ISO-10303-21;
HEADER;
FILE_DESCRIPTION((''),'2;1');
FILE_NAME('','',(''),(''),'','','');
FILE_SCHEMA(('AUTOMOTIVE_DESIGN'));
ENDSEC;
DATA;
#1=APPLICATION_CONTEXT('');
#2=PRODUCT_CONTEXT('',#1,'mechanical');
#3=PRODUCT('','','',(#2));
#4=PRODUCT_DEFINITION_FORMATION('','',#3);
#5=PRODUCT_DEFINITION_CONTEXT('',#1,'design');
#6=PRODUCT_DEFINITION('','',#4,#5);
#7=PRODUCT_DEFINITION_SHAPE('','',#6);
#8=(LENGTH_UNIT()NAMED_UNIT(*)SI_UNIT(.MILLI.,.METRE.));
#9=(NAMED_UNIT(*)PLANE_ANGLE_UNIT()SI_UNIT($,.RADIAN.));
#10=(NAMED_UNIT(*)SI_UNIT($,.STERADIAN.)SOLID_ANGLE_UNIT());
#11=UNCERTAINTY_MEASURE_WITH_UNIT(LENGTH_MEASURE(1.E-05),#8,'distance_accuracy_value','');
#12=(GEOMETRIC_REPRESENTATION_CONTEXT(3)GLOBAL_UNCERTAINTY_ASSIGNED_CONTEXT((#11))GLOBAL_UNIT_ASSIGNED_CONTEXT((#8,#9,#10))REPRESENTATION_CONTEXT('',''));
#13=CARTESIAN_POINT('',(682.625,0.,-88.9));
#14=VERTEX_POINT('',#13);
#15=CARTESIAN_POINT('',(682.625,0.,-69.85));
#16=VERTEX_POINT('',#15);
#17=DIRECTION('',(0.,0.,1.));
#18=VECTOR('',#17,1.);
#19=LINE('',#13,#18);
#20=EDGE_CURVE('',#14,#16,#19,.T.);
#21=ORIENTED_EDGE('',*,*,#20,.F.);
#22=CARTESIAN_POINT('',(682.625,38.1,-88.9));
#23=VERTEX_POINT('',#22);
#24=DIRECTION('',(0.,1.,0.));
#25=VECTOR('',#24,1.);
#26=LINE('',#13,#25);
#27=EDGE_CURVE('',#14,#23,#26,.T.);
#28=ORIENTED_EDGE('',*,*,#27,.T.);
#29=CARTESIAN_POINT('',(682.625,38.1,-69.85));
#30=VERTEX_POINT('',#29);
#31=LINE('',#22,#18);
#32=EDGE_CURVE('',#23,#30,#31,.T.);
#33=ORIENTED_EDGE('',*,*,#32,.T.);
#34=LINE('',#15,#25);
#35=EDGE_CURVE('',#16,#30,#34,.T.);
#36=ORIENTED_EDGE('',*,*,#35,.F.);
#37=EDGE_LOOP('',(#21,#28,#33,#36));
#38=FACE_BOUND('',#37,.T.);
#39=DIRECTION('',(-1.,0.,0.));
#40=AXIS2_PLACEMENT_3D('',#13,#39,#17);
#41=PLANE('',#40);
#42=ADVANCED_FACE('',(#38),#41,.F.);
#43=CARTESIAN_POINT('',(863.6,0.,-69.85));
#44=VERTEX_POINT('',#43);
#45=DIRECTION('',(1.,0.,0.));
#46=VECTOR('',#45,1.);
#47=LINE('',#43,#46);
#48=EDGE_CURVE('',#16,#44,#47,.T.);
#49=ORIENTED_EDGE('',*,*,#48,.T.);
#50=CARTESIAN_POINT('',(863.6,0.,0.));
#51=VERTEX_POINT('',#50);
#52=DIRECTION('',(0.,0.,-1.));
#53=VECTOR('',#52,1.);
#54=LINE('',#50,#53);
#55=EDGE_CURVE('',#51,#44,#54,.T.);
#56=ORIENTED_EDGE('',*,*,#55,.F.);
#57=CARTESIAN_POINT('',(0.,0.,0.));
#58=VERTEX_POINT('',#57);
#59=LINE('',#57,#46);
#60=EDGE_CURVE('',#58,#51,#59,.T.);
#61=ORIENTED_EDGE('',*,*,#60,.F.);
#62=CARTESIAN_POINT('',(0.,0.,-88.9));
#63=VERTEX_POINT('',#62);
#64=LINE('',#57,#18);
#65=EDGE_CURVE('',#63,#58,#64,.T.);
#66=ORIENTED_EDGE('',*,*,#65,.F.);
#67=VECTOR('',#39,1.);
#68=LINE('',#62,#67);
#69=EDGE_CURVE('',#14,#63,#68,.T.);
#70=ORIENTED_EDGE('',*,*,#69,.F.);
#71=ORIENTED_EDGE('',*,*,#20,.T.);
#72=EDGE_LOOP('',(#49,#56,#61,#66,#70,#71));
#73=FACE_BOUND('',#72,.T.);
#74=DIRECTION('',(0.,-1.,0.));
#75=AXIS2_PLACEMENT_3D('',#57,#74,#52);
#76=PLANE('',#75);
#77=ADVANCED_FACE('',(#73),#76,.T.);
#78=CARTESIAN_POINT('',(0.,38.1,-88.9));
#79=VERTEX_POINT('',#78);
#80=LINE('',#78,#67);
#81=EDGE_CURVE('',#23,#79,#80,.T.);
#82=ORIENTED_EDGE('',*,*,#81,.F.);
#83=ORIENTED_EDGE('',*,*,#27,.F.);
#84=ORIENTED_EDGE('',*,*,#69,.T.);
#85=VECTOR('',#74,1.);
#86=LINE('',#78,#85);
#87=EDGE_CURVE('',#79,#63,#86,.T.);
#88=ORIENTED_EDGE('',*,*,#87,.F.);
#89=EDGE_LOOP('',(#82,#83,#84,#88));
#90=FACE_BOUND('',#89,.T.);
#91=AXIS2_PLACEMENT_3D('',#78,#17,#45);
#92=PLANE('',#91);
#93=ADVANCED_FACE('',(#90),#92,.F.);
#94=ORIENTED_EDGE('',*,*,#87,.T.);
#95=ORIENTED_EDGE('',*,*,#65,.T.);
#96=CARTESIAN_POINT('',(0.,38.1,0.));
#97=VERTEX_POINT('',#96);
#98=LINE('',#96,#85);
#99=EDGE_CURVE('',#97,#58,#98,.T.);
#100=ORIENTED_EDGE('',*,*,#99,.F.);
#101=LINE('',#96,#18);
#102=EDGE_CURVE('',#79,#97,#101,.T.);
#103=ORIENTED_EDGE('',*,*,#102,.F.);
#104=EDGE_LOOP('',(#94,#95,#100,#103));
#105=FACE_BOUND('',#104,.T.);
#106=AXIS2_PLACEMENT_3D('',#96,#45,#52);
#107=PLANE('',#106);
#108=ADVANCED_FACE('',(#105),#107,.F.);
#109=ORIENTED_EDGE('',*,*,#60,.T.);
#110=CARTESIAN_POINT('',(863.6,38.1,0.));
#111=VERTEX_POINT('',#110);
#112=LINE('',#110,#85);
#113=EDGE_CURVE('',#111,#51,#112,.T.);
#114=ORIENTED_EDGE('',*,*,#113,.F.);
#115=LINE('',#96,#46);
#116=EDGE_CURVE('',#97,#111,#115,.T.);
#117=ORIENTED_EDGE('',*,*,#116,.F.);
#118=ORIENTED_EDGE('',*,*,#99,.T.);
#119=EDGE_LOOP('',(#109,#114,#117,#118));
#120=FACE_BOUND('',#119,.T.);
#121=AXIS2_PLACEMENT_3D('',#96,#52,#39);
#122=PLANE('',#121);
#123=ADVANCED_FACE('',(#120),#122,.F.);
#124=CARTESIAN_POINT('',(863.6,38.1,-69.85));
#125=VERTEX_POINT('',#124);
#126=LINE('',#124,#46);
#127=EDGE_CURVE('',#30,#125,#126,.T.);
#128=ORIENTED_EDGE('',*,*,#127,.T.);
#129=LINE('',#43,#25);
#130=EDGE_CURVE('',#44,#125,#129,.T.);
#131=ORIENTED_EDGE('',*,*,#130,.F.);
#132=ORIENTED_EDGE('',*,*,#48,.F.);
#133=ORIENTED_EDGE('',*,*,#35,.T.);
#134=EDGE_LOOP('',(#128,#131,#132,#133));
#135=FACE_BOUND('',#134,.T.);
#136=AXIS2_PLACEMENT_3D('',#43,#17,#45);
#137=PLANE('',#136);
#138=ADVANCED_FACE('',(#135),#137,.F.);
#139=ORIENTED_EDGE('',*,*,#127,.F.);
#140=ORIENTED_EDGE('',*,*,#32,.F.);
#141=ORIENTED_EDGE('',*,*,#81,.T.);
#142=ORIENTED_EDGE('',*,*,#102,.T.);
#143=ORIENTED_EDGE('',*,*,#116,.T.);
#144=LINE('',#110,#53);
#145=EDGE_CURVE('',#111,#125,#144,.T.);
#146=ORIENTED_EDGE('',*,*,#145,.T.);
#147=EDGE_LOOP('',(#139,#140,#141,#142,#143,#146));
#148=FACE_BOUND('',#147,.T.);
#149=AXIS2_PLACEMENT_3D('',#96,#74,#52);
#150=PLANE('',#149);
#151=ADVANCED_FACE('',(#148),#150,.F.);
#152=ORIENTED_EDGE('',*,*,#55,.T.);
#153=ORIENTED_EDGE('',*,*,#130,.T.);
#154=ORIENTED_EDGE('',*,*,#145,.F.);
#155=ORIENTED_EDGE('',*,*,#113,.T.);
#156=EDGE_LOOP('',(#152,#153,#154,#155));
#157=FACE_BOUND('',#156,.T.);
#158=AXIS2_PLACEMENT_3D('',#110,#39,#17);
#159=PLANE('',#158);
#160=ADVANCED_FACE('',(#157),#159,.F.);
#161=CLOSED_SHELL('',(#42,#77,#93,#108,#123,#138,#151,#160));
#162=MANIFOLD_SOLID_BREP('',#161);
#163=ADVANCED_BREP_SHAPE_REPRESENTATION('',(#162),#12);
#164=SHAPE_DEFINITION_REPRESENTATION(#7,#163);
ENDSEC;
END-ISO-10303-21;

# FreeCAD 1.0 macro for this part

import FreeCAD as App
import Part
import Sketcher
Q = App.Units.Quantity

doc = App.newDocument("Part")
body = doc.addObject("PartDesign::Body", "Body")

# Sketch on XZ plane
sketch1 = body.newObject("Sketcher::SketchObject", "Sketch")
sketch1.AttachmentSupport = (doc.getObject("XZ_Plane"), [""])
sketch1.MapMode = "FlatFace"
sketch1.addGeometry([
    Part.LineSegment(App.Vector(0, -89, 0), App.Vector(0, 0, 0)),
    Part.LineSegment(App.Vector(0, 0, 0), App.Vector(864, 0, 0)),
    Part.LineSegment(App.Vector(864, 0, 0), App.Vector(864, -89, 0)),
    Part.LineSegment(App.Vector(864, -89, 0), App.Vector(0, -89, 0)),
], False)
sketch1.addConstraint([
    Sketcher.Constraint("Coincident", 0, 2, 1, 1),
    Sketcher.Constraint("Coincident", 1, 2, 2, 1),
    Sketcher.Constraint("Coincident", 2, 2, 3, 1),
    Sketcher.Constraint("Coincident", 3, 2, 0, 1),
    Sketcher.Constraint("Vertical", 0),
    Sketcher.Constraint("Horizontal", 1),
    Sketcher.Constraint("Vertical", 2),
    Sketcher.Constraint("Horizontal", 3),
    Sketcher.Constraint("Coincident", 0, 2, -1, 1),
    Sketcher.Constraint("DistanceX", 1, 1, 1, 2, Q("34 in")),
    Sketcher.Constraint("DistanceY", 0, 1, 0, 2, Q("3.5 in")),
])
pad1 = body.newObject("PartDesign::Pad", "Pad")
pad1.Profile = sketch1
pad1.Length = Q("1.5 in")
pad1.Reversed = True

# Sketch on XZ plane
sketch2 = body.newObject("Sketcher::SketchObject", "Sketch001")
sketch2.AttachmentSupport = (doc.getObject("XZ_Plane"), [""])
sketch2.MapMode = "FlatFace"
sketch2.AttachmentOffset = App.Placement(App.Vector(0, 0, -1.5 * 25.4), App.Rotation())
sketch2.addGeometry([
    Part.LineSegment(App.Vector(683, -89, 0), App.Vector(683, -70, 0)),
    Part.LineSegment(App.Vector(683, -70, 0), App.Vector(864, -70, 0)),
    Part.LineSegment(App.Vector(864, -70, 0), App.Vector(864, -89, 0)),
    Part.LineSegment(App.Vector(864, -89, 0), App.Vector(683, -89, 0)),
], False)
sketch2.addConstraint([
    Sketcher.Constraint("Coincident", 0, 2, 1, 1),
    Sketcher.Constraint("Coincident", 1, 2, 2, 1),
    Sketcher.Constraint("Coincident", 2, 2, 3, 1),
    Sketcher.Constraint("Coincident", 3, 2, 0, 1),
    Sketcher.Constraint("Vertical", 0),
    Sketcher.Constraint("Horizontal", 1),
    Sketcher.Constraint("Vertical", 2),
    Sketcher.Constraint("Horizontal", 3),
    Sketcher.Constraint("DistanceX", -1, 1, 1, 2, Q("34 in")),
    Sketcher.Constraint("DistanceY", 0, 1, 0, 2, Q("0.75 in")),
    Sketcher.Constraint("DistanceY", 2, 2, -1, 1, Q("3.5 in")),
    Sketcher.Constraint("DistanceX", 1, 1, 1, 2, Q("7.125 in")),
])
pocket1 = body.newObject("PartDesign::Pocket", "Pocket")
pocket1.Profile = sketch2
pocket1.Type = "ThroughAll"
pocket1.Reversed = True

doc.recompute()
